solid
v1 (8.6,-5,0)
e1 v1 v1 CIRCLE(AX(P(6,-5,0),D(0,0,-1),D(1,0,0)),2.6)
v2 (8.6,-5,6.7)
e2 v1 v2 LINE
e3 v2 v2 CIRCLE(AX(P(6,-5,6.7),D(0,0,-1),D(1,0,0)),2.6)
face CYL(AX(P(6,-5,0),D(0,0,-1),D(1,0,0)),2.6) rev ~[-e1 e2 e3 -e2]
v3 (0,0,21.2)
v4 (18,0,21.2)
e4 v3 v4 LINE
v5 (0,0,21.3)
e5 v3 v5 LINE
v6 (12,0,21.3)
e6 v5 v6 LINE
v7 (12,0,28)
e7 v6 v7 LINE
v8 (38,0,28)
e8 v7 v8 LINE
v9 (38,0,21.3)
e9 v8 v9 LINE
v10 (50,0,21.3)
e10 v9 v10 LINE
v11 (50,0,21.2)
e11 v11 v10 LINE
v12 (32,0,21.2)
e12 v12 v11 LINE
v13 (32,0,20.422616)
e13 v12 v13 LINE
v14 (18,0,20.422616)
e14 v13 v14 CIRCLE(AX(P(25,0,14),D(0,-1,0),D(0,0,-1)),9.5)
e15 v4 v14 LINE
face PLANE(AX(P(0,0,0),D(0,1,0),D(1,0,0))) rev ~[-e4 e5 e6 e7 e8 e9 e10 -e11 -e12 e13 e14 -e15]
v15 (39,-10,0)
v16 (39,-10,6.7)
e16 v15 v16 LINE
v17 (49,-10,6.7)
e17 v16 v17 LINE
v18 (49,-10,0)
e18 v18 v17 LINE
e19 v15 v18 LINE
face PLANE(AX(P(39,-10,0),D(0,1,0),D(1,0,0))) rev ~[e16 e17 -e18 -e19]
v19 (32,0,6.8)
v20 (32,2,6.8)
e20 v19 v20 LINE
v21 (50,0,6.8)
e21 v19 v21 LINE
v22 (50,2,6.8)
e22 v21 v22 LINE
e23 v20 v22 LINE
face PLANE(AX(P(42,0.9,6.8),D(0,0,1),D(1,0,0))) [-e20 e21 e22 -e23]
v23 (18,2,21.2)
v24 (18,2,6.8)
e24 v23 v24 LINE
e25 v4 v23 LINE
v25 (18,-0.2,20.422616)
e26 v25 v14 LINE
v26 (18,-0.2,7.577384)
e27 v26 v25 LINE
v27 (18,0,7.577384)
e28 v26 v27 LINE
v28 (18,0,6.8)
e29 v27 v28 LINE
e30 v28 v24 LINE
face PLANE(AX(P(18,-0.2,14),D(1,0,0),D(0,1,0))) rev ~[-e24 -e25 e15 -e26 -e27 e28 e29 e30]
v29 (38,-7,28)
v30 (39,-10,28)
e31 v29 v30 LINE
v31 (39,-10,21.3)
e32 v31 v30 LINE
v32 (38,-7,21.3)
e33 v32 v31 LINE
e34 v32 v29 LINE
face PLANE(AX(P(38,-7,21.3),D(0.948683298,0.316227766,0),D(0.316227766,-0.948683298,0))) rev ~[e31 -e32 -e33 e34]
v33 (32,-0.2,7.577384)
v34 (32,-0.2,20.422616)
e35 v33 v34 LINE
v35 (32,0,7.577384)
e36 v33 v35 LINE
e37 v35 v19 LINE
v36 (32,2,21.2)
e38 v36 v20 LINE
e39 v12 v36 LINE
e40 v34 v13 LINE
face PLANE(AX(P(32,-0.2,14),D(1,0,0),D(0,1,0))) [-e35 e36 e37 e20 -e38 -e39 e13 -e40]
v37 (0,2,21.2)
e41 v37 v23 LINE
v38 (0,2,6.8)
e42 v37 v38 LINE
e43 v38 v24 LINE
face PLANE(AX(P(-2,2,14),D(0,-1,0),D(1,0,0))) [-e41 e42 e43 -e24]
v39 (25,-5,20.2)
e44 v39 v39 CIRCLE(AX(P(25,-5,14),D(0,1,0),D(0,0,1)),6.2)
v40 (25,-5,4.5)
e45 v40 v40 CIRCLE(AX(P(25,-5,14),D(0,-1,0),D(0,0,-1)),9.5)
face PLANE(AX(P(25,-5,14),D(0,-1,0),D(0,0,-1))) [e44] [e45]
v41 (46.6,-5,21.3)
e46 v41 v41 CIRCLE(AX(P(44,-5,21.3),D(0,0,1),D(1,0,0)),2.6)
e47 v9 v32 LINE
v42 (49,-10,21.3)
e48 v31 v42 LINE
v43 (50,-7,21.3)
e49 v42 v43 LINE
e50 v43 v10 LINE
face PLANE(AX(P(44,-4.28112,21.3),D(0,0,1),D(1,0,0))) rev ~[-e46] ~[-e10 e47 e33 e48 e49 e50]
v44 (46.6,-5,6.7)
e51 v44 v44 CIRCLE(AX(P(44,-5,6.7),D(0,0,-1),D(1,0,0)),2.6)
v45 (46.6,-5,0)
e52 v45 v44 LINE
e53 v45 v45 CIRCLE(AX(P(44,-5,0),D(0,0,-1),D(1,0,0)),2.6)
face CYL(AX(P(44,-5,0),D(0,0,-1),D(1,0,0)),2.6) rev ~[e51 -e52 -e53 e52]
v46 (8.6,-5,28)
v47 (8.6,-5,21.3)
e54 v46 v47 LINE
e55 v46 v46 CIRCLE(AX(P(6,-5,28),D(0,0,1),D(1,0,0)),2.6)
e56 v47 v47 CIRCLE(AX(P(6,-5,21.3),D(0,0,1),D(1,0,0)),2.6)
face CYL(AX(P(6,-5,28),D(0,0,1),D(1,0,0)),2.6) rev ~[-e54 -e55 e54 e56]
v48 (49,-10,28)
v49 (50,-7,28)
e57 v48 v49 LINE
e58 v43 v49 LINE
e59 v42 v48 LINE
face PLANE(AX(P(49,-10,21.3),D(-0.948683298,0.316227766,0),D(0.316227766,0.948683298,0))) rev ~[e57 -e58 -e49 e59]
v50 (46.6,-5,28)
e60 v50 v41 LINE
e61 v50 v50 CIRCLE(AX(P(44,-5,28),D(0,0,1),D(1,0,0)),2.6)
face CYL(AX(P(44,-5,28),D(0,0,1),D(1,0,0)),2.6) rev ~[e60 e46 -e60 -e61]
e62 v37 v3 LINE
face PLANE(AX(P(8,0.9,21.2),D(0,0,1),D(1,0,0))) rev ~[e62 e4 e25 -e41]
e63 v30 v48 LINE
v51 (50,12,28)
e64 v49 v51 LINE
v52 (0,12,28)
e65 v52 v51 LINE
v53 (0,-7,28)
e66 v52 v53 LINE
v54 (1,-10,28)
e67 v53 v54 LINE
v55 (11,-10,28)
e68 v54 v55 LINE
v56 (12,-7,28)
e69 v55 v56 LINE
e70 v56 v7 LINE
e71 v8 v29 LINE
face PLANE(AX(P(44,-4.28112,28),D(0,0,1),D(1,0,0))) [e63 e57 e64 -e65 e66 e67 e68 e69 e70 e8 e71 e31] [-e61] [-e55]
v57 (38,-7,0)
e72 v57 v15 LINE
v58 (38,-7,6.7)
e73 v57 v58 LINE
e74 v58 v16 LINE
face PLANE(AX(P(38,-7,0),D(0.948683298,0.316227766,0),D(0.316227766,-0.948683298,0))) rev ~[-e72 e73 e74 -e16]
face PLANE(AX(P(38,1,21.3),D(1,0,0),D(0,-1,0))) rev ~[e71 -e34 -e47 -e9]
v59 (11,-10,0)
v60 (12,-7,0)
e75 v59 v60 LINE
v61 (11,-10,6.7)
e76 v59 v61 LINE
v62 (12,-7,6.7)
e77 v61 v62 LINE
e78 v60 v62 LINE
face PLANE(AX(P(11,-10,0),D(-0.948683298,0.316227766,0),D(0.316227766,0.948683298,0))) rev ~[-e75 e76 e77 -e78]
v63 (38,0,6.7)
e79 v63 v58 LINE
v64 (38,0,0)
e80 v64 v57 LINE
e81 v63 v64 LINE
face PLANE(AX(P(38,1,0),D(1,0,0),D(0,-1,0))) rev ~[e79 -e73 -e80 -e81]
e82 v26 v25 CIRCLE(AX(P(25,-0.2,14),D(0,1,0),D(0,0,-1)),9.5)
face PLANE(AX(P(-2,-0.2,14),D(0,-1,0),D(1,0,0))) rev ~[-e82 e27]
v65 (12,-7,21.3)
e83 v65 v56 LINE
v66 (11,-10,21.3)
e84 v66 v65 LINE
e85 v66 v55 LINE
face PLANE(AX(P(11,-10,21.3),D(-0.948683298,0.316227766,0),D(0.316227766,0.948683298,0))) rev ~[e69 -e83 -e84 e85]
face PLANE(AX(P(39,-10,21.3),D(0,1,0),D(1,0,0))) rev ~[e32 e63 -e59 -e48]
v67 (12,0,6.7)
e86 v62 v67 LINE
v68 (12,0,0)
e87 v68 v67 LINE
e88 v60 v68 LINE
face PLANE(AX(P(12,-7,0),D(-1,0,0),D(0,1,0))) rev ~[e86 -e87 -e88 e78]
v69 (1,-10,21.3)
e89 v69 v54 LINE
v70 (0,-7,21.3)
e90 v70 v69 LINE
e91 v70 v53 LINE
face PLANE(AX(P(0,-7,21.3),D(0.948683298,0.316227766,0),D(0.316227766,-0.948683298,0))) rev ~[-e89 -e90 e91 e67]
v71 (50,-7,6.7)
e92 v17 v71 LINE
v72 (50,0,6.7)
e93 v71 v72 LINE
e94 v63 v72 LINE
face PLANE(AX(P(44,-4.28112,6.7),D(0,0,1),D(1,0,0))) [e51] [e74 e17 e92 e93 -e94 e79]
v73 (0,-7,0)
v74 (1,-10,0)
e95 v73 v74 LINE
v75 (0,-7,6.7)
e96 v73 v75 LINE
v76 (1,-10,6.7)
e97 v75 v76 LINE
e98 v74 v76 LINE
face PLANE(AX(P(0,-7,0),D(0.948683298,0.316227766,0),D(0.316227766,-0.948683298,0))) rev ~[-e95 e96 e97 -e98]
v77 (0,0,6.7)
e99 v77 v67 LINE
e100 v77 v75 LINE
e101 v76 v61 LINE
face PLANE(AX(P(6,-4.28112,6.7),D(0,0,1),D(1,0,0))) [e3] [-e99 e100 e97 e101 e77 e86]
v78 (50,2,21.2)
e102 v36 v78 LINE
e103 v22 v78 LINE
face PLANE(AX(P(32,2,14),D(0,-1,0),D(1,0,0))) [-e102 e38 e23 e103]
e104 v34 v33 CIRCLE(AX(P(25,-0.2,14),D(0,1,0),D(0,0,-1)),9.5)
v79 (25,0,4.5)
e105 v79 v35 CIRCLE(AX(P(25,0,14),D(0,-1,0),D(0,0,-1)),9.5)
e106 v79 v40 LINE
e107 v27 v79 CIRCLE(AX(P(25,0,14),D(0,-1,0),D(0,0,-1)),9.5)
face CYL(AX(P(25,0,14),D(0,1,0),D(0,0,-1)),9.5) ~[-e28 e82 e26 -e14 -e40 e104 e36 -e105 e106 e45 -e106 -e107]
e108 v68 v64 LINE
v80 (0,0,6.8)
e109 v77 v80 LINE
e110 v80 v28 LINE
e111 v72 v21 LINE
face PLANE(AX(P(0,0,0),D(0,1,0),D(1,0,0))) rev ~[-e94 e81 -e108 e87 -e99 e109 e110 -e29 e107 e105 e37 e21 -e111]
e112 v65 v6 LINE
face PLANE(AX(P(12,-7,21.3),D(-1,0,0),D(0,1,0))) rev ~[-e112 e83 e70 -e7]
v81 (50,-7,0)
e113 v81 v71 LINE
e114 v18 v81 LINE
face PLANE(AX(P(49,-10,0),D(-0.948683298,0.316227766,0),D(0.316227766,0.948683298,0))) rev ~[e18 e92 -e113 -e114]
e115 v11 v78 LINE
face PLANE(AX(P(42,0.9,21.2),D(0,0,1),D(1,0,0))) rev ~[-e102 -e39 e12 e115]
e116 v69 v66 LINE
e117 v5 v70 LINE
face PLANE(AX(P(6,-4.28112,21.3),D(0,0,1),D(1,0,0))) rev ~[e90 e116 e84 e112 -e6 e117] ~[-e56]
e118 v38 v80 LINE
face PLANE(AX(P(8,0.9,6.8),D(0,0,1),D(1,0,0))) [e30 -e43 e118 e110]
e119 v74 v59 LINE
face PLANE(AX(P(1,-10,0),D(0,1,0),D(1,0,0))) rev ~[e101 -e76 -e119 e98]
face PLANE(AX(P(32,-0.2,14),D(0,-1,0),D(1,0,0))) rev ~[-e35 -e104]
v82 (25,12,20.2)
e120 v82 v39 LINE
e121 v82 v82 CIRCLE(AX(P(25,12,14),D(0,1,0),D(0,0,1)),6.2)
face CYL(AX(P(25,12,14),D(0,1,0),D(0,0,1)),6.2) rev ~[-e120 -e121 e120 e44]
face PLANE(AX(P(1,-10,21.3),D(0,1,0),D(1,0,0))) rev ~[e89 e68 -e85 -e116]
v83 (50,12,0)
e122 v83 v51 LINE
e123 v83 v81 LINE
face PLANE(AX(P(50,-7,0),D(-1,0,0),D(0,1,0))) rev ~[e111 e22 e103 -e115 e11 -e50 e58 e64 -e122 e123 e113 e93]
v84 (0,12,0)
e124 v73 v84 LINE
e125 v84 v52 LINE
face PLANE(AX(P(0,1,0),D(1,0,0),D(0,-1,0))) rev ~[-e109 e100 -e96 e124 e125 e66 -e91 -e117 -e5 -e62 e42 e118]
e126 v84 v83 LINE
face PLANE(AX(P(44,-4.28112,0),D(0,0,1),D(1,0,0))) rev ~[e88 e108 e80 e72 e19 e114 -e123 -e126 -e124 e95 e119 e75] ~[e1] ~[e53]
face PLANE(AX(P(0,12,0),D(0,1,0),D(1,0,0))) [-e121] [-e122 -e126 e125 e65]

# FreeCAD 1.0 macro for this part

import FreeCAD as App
import Part
import Sketcher
Q = App.Units.Quantity

doc = App.newDocument("Part")
body = doc.addObject("PartDesign::Body", "Body")

# Sketch on XY plane
sketch1 = doc.addObject("Sketcher::SketchObject", "Sketch")
body.addObject(sketch1)
sketch1.AttachmentSupport = (doc.XY_Plane, [""])
sketch1.MapMode = "FlatFace"
sketch1.addGeometry([
    Part.LineSegment(App.Vector(0, 12, 0), App.Vector(0, 0, 0)),
    Part.LineSegment(App.Vector(0, 0, 0), App.Vector(50, 0, 0)),
    Part.LineSegment(App.Vector(50, 0, 0), App.Vector(50, 12, 0)),
    Part.LineSegment(App.Vector(50, 12, 0), App.Vector(0, 12, 0)),
], False)
sketch1.addConstraint([
    Sketcher.Constraint("Coincident", 0, 2, 1, 1),
    Sketcher.Constraint("Coincident", 1, 2, 2, 1),
    Sketcher.Constraint("Coincident", 2, 2, 3, 1),
    Sketcher.Constraint("Coincident", 3, 2, 0, 1),
    Sketcher.Constraint("Vertical", 0),
    Sketcher.Constraint("Horizontal", 1),
    Sketcher.Constraint("Vertical", 2),
    Sketcher.Constraint("Horizontal", 3),
    Sketcher.Constraint("Coincident", 0, 2, -1, 1),
    Sketcher.Constraint("DistanceX", 1, 1, 1, 2, Q("50 mm")),
    Sketcher.Constraint("DistanceY", 0, 2, 0, 1, Q("12 mm")),
])
pad1 = doc.addObject("PartDesign::Pad", "Pad")
body.addObject(pad1)
pad1.Profile = sketch1
pad1.Length = 28

# Sketch on XZ plane
sketch2 = doc.addObject("Sketcher::SketchObject", "Sketch001")
body.addObject(sketch2)
sketch2.AttachmentSupport = (doc.XZ_Plane, [""])
sketch2.MapMode = "FlatFace"
sketch2.addGeometry(Part.Circle(App.Vector(25, 14, 0), App.Vector(0, 0, 1), 10), False)
sketch2.addConstraint([
    Sketcher.Constraint("Diameter", 0, Q("19 mm")),
    Sketcher.Constraint("DistanceX", -1, 1, 0, 3, Q("25 mm")),
    Sketcher.Constraint("DistanceY", -1, 1, 0, 3, Q("14 mm")),
])
pad2 = doc.addObject("PartDesign::Pad", "Pad001")
body.addObject(pad2)
pad2.Profile = sketch2
pad2.Length = 5

# Sketch on XZ plane
sketch3 = doc.addObject("Sketcher::SketchObject", "Sketch002")
body.addObject(sketch3)
sketch3.AttachmentSupport = (doc.XZ_Plane, [""])
sketch3.MapMode = "FlatFace"
sketch3.AttachmentOffset = App.Placement(App.Vector(0, 0, -12), App.Rotation())
sketch3.addGeometry(Part.Circle(App.Vector(25, 14, 0), App.Vector(0, 0, 1), 6), False)
sketch3.addConstraint([
    Sketcher.Constraint("Diameter", 0, Q("12.4 mm")),
    Sketcher.Constraint("DistanceX", -1, 1, 0, 3, Q("25 mm")),
    Sketcher.Constraint("DistanceY", -1, 1, 0, 3, Q("14 mm")),
])
pocket1 = doc.addObject("PartDesign::Pocket", "Pocket")
body.addObject(pocket1)
pocket1.Profile = sketch3
pocket1.Type = "ThroughAll"
pocket1.Reversed = True

# Sketch on XY plane
sketch4 = doc.addObject("Sketcher::SketchObject", "Sketch003")
body.addObject(sketch4)
sketch4.AttachmentSupport = (doc.XY_Plane, [""])
sketch4.MapMode = "FlatFace"
sketch4.AttachmentOffset = App.Placement(App.Vector(0, 0, 21.3), App.Rotation())
sketch4.addGeometry([
    Part.LineSegment(App.Vector(1, -10, 0), App.Vector(11, -10, 0)),  # 0
    Part.LineSegment(App.Vector(11, -10, 0), App.Vector(12, -7, 0)),  # 1
    Part.LineSegment(App.Vector(12, -7, 0), App.Vector(12, 1, 0)),  # 2
    Part.LineSegment(App.Vector(12, 1, 0), App.Vector(0, 1, 0)),  # 3
    Part.LineSegment(App.Vector(0, 1, 0), App.Vector(0, -7, 0)),  # 4
    Part.LineSegment(App.Vector(0, -7, 0), App.Vector(1, -10, 0)),  # 5
], False)
sketch4.addConstraint([
    Sketcher.Constraint("Coincident", 0, 2, 1, 1),
    Sketcher.Constraint("Coincident", 1, 2, 2, 1),
    Sketcher.Constraint("Coincident", 2, 2, 3, 1),
    Sketcher.Constraint("Coincident", 3, 2, 4, 1),
    Sketcher.Constraint("Coincident", 4, 2, 5, 1),
    Sketcher.Constraint("Coincident", 5, 2, 0, 1),
    Sketcher.Constraint("Horizontal", 0),
    Sketcher.Constraint("Vertical", 2),
    Sketcher.Constraint("Horizontal", 3),
    Sketcher.Constraint("Vertical", 4),
    Sketcher.Constraint("PointOnObject", 3, 2, -2),
    Sketcher.Constraint("Horizontal", 1, 2, 4, 2),
    Sketcher.Constraint("Equal", 1, 5),
    Sketcher.Constraint("DistanceX", 0, 1, 0, 2, Q("10 mm")),
    Sketcher.Constraint("DistanceX", 3, 2, 3, 1, Q("12 mm")),
    Sketcher.Constraint("DistanceY", 2, 1, 2, 2, Q("8 mm")),
    Sketcher.Constraint("DistanceY", 0, 2, -1, 1, Q("10 mm")),
    Sketcher.Constraint("DistanceY", 1, 2, -1, 1, Q("7 mm")),
])
pad3 = doc.addObject("PartDesign::Pad", "Pad002")
body.addObject(pad3)
pad3.Profile = sketch4
pad3.Length = 6.7

# Sketch on XY plane
sketch5 = doc.addObject("Sketcher::SketchObject", "Sketch004")
body.addObject(sketch5)
sketch5.AttachmentSupport = (doc.XY_Plane, [""])
sketch5.MapMode = "FlatFace"
sketch5.AttachmentOffset = App.Placement(App.Vector(0, 0, 28), App.Rotation())
sketch5.addGeometry(Part.Circle(App.Vector(6, -5, 0), App.Vector(0, 0, 1), 2.6), False)
sketch5.addConstraint([
    Sketcher.Constraint("Diameter", 0, Q("5.2 mm")),
    Sketcher.Constraint("DistanceX", -1, 1, 0, 3, Q("6 mm")),
    Sketcher.Constraint("DistanceY", 0, 3, -1, 1, Q("5 mm")),
])
pocket2 = doc.addObject("PartDesign::Pocket", "Pocket001")
body.addObject(pocket2)
pocket2.Profile = sketch5
pocket2.Type = "ThroughAll"

# Sketch on XY plane
sketch6 = doc.addObject("Sketcher::SketchObject", "Sketch005")
body.addObject(sketch6)
sketch6.AttachmentSupport = (doc.XY_Plane, [""])
sketch6.MapMode = "FlatFace"
sketch6.AttachmentOffset = App.Placement(App.Vector(0, 0, 21.3), App.Rotation())
sketch6.addGeometry([
    Part.LineSegment(App.Vector(39, -10, 0), App.Vector(49, -10, 0)),  # 0
    Part.LineSegment(App.Vector(49, -10, 0), App.Vector(50, -7, 0)),  # 1
    Part.LineSegment(App.Vector(50, -7, 0), App.Vector(50, 1, 0)),  # 2
    Part.LineSegment(App.Vector(50, 1, 0), App.Vector(38, 1, 0)),  # 3
    Part.LineSegment(App.Vector(38, 1, 0), App.Vector(38, -7, 0)),  # 4
    Part.LineSegment(App.Vector(38, -7, 0), App.Vector(39, -10, 0)),  # 5
], False)
sketch6.addConstraint([
    Sketcher.Constraint("Coincident", 0, 2, 1, 1),
    Sketcher.Constraint("Coincident", 1, 2, 2, 1),
    Sketcher.Constraint("Coincident", 2, 2, 3, 1),
    Sketcher.Constraint("Coincident", 3, 2, 4, 1),
    Sketcher.Constraint("Coincident", 4, 2, 5, 1),
    Sketcher.Constraint("Coincident", 5, 2, 0, 1),
    Sketcher.Constraint("Horizontal", 0),
    Sketcher.Constraint("Vertical", 2),
    Sketcher.Constraint("Horizontal", 3),
    Sketcher.Constraint("Vertical", 4),
    Sketcher.Constraint("Horizontal", 1, 2, 4, 2),
    Sketcher.Constraint("Equal", 1, 5),
    Sketcher.Constraint("DistanceX", 0, 1, 0, 2, Q("10 mm")),
    Sketcher.Constraint("DistanceX", 3, 2, 3, 1, Q("12 mm")),
    Sketcher.Constraint("DistanceY", 2, 1, 2, 2, Q("8 mm")),
    Sketcher.Constraint("DistanceX", -1, 1, 0, 2, Q("49 mm")),
    Sketcher.Constraint("DistanceY", 0, 2, -1, 1, Q("10 mm")),
    Sketcher.Constraint("DistanceY", 1, 2, -1, 1, Q("7 mm")),
])
pad4 = doc.addObject("PartDesign::Pad", "Pad003")
body.addObject(pad4)
pad4.Profile = sketch6
pad4.Length = 6.7

# Sketch on XY plane
sketch7 = doc.addObject("Sketcher::SketchObject", "Sketch006")
body.addObject(sketch7)
sketch7.AttachmentSupport = (doc.XY_Plane, [""])
sketch7.MapMode = "FlatFace"
sketch7.AttachmentOffset = App.Placement(App.Vector(0, 0, 28), App.Rotation())
sketch7.addGeometry(Part.Circle(App.Vector(44, -5, 0), App.Vector(0, 0, 1), 2.6), False)
sketch7.addConstraint([
    Sketcher.Constraint("Diameter", 0, Q("5.2 mm")),
    Sketcher.Constraint("DistanceX", -1, 1, 0, 3, Q("44 mm")),
    Sketcher.Constraint("DistanceY", 0, 3, -1, 1, Q("5 mm")),
])
pocket3 = doc.addObject("PartDesign::Pocket", "Pocket002")
body.addObject(pocket3)
pocket3.Profile = sketch7
pocket3.Type = "ThroughAll"

# Sketch on XY plane
sketch8 = doc.addObject("Sketcher::SketchObject", "Sketch007")
body.addObject(sketch8)
sketch8.AttachmentSupport = (doc.XY_Plane, [""])
sketch8.MapMode = "FlatFace"
sketch8.addGeometry([
    Part.LineSegment(App.Vector(1, -10, 0), App.Vector(11, -10, 0)),  # 0
    Part.LineSegment(App.Vector(11, -10, 0), App.Vector(12, -7, 0)),  # 1
    Part.LineSegment(App.Vector(12, -7, 0), App.Vector(12, 1, 0)),  # 2
    Part.LineSegment(App.Vector(12, 1, 0), App.Vector(0, 1, 0)),  # 3
    Part.LineSegment(App.Vector(0, 1, 0), App.Vector(0, -7, 0)),  # 4
    Part.LineSegment(App.Vector(0, -7, 0), App.Vector(1, -10, 0)),  # 5
], False)
sketch8.addConstraint([
    Sketcher.Constraint("Coincident", 0, 2, 1, 1),
    Sketcher.Constraint("Coincident", 1, 2, 2, 1),
    Sketcher.Constraint("Coincident", 2, 2, 3, 1),
    Sketcher.Constraint("Coincident", 3, 2, 4, 1),
    Sketcher.Constraint("Coincident", 4, 2, 5, 1),
    Sketcher.Constraint("Coincident", 5, 2, 0, 1),
    Sketcher.Constraint("Horizontal", 0),
    Sketcher.Constraint("Vertical", 2),
    Sketcher.Constraint("Horizontal", 3),
    Sketcher.Constraint("Vertical", 4),
    Sketcher.Constraint("PointOnObject", 3, 2, -2),
    Sketcher.Constraint("Horizontal", 1, 2, 4, 2),
    Sketcher.Constraint("Equal", 1, 5),
    Sketcher.Constraint("DistanceX", 0, 1, 0, 2, Q("10 mm")),
    Sketcher.Constraint("DistanceX", 3, 2, 3, 1, Q("12 mm")),
    Sketcher.Constraint("DistanceY", 2, 1, 2, 2, Q("8 mm")),
    Sketcher.Constraint("DistanceY", 0, 2, -1, 1, Q("10 mm")),
    Sketcher.Constraint("DistanceY", 1, 2, -1, 1, Q("7 mm")),
])
pad5 = doc.addObject("PartDesign::Pad", "Pad004")
body.addObject(pad5)
pad5.Profile = sketch8
pad5.Length = 6.7

# Sketch on XY plane
sketch9 = doc.addObject("Sketcher::SketchObject", "Sketch008")
body.addObject(sketch9)
sketch9.AttachmentSupport = (doc.XY_Plane, [""])
sketch9.MapMode = "FlatFace"
sketch9.addGeometry(Part.Circle(App.Vector(6, -5, 0), App.Vector(0, 0, 1), 2.6), False)
sketch9.addConstraint([
    Sketcher.Constraint("Diameter", 0, Q("5.2 mm")),
    Sketcher.Constraint("DistanceX", -1, 1, 0, 3, Q("6 mm")),
    Sketcher.Constraint("DistanceY", 0, 3, -1, 1, Q("5 mm")),
])
pocket4 = doc.addObject("PartDesign::Pocket", "Pocket003")
body.addObject(pocket4)
pocket4.Profile = sketch9
pocket4.Type = "ThroughAll"
pocket4.Reversed = True

# Sketch on XY plane
sketch10 = doc.addObject("Sketcher::SketchObject", "Sketch009")
body.addObject(sketch10)
sketch10.AttachmentSupport = (doc.XY_Plane, [""])
sketch10.MapMode = "FlatFace"
sketch10.addGeometry([
    Part.LineSegment(App.Vector(39, -10, 0), App.Vector(49, -10, 0)),  # 0
    Part.LineSegment(App.Vector(49, -10, 0), App.Vector(50, -7, 0)),  # 1
    Part.LineSegment(App.Vector(50, -7, 0), App.Vector(50, 1, 0)),  # 2
    Part.LineSegment(App.Vector(50, 1, 0), App.Vector(38, 1, 0)),  # 3
    Part.LineSegment(App.Vector(38, 1, 0), App.Vector(38, -7, 0)),  # 4
    Part.LineSegment(App.Vector(38, -7, 0), App.Vector(39, -10, 0)),  # 5
], False)
sketch10.addConstraint([
    Sketcher.Constraint("Coincident", 0, 2, 1, 1),
    Sketcher.Constraint("Coincident", 1, 2, 2, 1),
    Sketcher.Constraint("Coincident", 2, 2, 3, 1),
    Sketcher.Constraint("Coincident", 3, 2, 4, 1),
    Sketcher.Constraint("Coincident", 4, 2, 5, 1),
    Sketcher.Constraint("Coincident", 5, 2, 0, 1),
    Sketcher.Constraint("Horizontal", 0),
    Sketcher.Constraint("Vertical", 2),
    Sketcher.Constraint("Horizontal", 3),
    Sketcher.Constraint("Vertical", 4),
    Sketcher.Constraint("Horizontal", 1, 2, 4, 2),
    Sketcher.Constraint("Equal", 1, 5),
    Sketcher.Constraint("DistanceX", 0, 1, 0, 2, Q("10 mm")),
    Sketcher.Constraint("DistanceX", 3, 2, 3, 1, Q("12 mm")),
    Sketcher.Constraint("DistanceY", 2, 1, 2, 2, Q("8 mm")),
    Sketcher.Constraint("DistanceX", -1, 1, 0, 2, Q("49 mm")),
    Sketcher.Constraint("DistanceY", 0, 2, -1, 1, Q("10 mm")),
    Sketcher.Constraint("DistanceY", 1, 2, -1, 1, Q("7 mm")),
])
pad6 = doc.addObject("PartDesign::Pad", "Pad005")
body.addObject(pad6)
pad6.Profile = sketch10
pad6.Length = 6.7

# Sketch on XY plane
sketch11 = doc.addObject("Sketcher::SketchObject", "Sketch010")
body.addObject(sketch11)
sketch11.AttachmentSupport = (doc.XY_Plane, [""])
sketch11.MapMode = "FlatFace"
sketch11.addGeometry(Part.Circle(App.Vector(44, -5, 0), App.Vector(0, 0, 1), 2.6), False)
sketch11.addConstraint([
    Sketcher.Constraint("Diameter", 0, Q("5.2 mm")),
    Sketcher.Constraint("DistanceX", -1, 1, 0, 3, Q("44 mm")),
    Sketcher.Constraint("DistanceY", 0, 3, -1, 1, Q("5 mm")),
])
pocket5 = doc.addObject("PartDesign::Pocket", "Pocket004")
body.addObject(pocket5)
pocket5.Profile = sketch11
pocket5.Type = "ThroughAll"
pocket5.Reversed = True

# Sketch on XY plane
sketch12 = doc.addObject("Sketcher::SketchObject", "Sketch011")
body.addObject(sketch12)
sketch12.AttachmentSupport = (doc.XY_Plane, [""])
sketch12.MapMode = "FlatFace"
sketch12.AttachmentOffset = App.Placement(App.Vector(0, 0, 14), App.Rotation())
sketch12.addGeometry([
    Part.LineSegment(App.Vector(-2, 2, 0), App.Vector(-2, -0.2, 0)),
    Part.LineSegment(App.Vector(-2, -0.2, 0), App.Vector(18, -0.2, 0)),
    Part.LineSegment(App.Vector(18, -0.2, 0), App.Vector(18, 2, 0)),
    Part.LineSegment(App.Vector(18, 2, 0), App.Vector(-2, 2, 0)),
], False)
sketch12.addConstraint([
    Sketcher.Constraint("Coincident", 0, 2, 1, 1),
    Sketcher.Constraint("Coincident", 1, 2, 2, 1),
    Sketcher.Constraint("Coincident", 2, 2, 3, 1),
    Sketcher.Constraint("Coincident", 3, 2, 0, 1),
    Sketcher.Constraint("Vertical", 0),
    Sketcher.Constraint("Horizontal", 1),
    Sketcher.Constraint("Vertical", 2),
    Sketcher.Constraint("Horizontal", 3),
    Sketcher.Constraint("DistanceX", 1, 1, 1, 2, Q("20 mm")),
    Sketcher.Constraint("DistanceY", 0, 2, 0, 1, Q("2.2 mm")),
    Sketcher.Constraint("DistanceX", 0, 2, -1, 1, Q("2 mm")),
    Sketcher.Constraint("DistanceY", -1, 1, 2, 2, Q("2 mm")),
])
pocket6 = doc.addObject("PartDesign::Pocket", "Pocket005")
body.addObject(pocket6)
pocket6.Profile = sketch12
pocket6.Length = 14.4
pocket6.Midplane = True

# Sketch on XY plane
sketch13 = doc.addObject("Sketcher::SketchObject", "Sketch012")
body.addObject(sketch13)
sketch13.AttachmentSupport = (doc.XY_Plane, [""])
sketch13.MapMode = "FlatFace"
sketch13.AttachmentOffset = App.Placement(App.Vector(0, 0, 14), App.Rotation())
sketch13.addGeometry([
    Part.LineSegment(App.Vector(32, 2, 0), App.Vector(32, -0.2, 0)),
    Part.LineSegment(App.Vector(32, -0.2, 0), App.Vector(52, -0.2, 0)),
    Part.LineSegment(App.Vector(52, -0.2, 0), App.Vector(52, 2, 0)),
    Part.LineSegment(App.Vector(52, 2, 0), App.Vector(32, 2, 0)),
], False)
sketch13.addConstraint([
    Sketcher.Constraint("Coincident", 0, 2, 1, 1),
    Sketcher.Constraint("Coincident", 1, 2, 2, 1),
    Sketcher.Constraint("Coincident", 2, 2, 3, 1),
    Sketcher.Constraint("Coincident", 3, 2, 0, 1),
    Sketcher.Constraint("Vertical", 0),
    Sketcher.Constraint("Horizontal", 1),
    Sketcher.Constraint("Vertical", 2),
    Sketcher.Constraint("Horizontal", 3),
    Sketcher.Constraint("DistanceX", 1, 1, 1, 2, Q("20 mm")),
    Sketcher.Constraint("DistanceY", 0, 2, 0, 1, Q("2.2 mm")),
    Sketcher.Constraint("DistanceX", -1, 1, 0, 2, Q("32 mm")),
    Sketcher.Constraint("DistanceY", -1, 1, 2, 2, Q("2 mm")),
])
pocket7 = doc.addObject("PartDesign::Pocket", "Pocket006")
body.addObject(pocket7)
pocket7.Profile = sketch13
pocket7.Length = 14.4
pocket7.Midplane = True

doc.recompute()
